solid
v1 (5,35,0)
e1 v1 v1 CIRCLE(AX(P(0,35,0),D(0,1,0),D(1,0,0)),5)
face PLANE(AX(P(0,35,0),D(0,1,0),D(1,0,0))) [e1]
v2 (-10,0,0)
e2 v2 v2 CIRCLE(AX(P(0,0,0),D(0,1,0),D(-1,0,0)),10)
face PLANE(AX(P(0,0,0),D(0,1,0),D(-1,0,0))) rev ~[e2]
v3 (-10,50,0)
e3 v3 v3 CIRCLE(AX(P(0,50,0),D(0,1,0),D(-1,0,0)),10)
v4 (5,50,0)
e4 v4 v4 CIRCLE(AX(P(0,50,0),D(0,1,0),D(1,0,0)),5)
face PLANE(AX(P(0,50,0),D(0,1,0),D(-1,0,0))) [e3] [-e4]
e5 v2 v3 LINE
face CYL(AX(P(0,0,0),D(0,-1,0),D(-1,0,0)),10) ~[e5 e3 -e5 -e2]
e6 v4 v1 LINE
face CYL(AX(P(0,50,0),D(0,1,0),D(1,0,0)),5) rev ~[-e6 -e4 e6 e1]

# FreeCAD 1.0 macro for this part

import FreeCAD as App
import Part
import Sketcher

V = App.Vector

doc = App.newDocument("Part")
body = doc.addObject("PartDesign::Body", "Body")

# Sketch on XZ plane
sketch1 = body.newObject("Sketcher::SketchObject", "Sketch")
sketch1.AttachmentSupport = (doc.getObject("XZ_Plane"), [""])
sketch1.MapMode = "FlatFace"
sketch1.addGeometry(Part.Circle(V(0, 0, 0), V(0, 0, 1), 10), False)
sketch1.addConstraint(Sketcher.Constraint("Coincident", 0, 3, -1, 1))
sketch1.addConstraint(Sketcher.Constraint("Diameter", 0, 20.0))
pad1 = body.newObject("PartDesign::Pad", "Pad")
pad1.Profile = sketch1
pad1.Length = 50
pad1.Reversed = True

# Sketch on XZ plane
sketch2 = body.newObject("Sketcher::SketchObject", "Sketch001")
sketch2.AttachmentSupport = (doc.getObject("XZ_Plane"), [""])
sketch2.MapMode = "FlatFace"
sketch2.AttachmentOffset = App.Placement(V(0, 0, -50), App.Rotation())
sketch2.addGeometry(Part.Circle(V(0, 0, 0), V(0, 0, 1), 5), False)
sketch2.addConstraint(Sketcher.Constraint("Coincident", 0, 3, -1, 1))
sketch2.addConstraint(Sketcher.Constraint("Diameter", 0, 10.0))
pocket1 = body.newObject("PartDesign::Pocket", "Pocket")
pocket1.Profile = sketch2
pocket1.Length = 15
pocket1.Reversed = True

doc.recompute()
